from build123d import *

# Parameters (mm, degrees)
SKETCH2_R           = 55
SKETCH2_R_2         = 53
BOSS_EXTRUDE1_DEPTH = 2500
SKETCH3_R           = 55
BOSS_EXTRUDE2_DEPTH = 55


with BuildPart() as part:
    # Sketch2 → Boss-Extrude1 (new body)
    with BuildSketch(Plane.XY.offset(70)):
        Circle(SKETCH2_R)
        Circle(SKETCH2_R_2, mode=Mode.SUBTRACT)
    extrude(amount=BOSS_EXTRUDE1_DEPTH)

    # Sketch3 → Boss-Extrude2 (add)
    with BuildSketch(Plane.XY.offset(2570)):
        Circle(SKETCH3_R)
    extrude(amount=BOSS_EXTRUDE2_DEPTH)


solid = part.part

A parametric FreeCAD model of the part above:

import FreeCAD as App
import Part
import Sketcher

V = App.Vector

doc = App.newDocument("Part")
body = doc.addObject("PartDesign::Body", "Body")

# Sketch on XY plane
sketch1 = body.newObject("Sketcher::SketchObject", "Sketch")
sketch1.AttachmentSupport = (doc.getObject("XY_Plane"), [""])
sketch1.MapMode = "FlatFace"
sketch1.AttachmentOffset = App.Placement(V(0, 0, 70), App.Rotation())
sketch1.addGeometry([
    Part.Circle(V(0, 0, 0), V(0, 0, 1), 55),
    Part.Circle(V(0, 0, 0), V(0, 0, 1), 53),
], False)
sketch1.addConstraint([
    Sketcher.Constraint("Coincident", 0, 3, -1, 1),
    Sketcher.Constraint("Coincident", 1, 3, -1, 1),
    Sketcher.Constraint("Diameter", 0, 110.0),
    Sketcher.Constraint("Diameter", 1, 106.0),
])
pad1 = body.newObject("PartDesign::Pad", "Pad")
pad1.Profile = sketch1
pad1.Length = 2500

# Sketch on XY plane
sketch2 = body.newObject("Sketcher::SketchObject", "Sketch001")
sketch2.AttachmentSupport = (doc.getObject("XY_Plane"), [""])
sketch2.MapMode = "FlatFace"
sketch2.AttachmentOffset = App.Placement(V(0, 0, 2570), App.Rotation())
sketch2.addGeometry(Part.Circle(V(0, 0, 0), V(0, 0, 1), 55), False)
sketch2.addConstraint([
    Sketcher.Constraint("Coincident", 0, 3, -1, 1),
    Sketcher.Constraint("Diameter", 0, 110.0),
])
pad2 = body.newObject("PartDesign::Pad", "Pad001")
pad2.Profile = sketch2
pad2.Length = 55

doc.recompute()
